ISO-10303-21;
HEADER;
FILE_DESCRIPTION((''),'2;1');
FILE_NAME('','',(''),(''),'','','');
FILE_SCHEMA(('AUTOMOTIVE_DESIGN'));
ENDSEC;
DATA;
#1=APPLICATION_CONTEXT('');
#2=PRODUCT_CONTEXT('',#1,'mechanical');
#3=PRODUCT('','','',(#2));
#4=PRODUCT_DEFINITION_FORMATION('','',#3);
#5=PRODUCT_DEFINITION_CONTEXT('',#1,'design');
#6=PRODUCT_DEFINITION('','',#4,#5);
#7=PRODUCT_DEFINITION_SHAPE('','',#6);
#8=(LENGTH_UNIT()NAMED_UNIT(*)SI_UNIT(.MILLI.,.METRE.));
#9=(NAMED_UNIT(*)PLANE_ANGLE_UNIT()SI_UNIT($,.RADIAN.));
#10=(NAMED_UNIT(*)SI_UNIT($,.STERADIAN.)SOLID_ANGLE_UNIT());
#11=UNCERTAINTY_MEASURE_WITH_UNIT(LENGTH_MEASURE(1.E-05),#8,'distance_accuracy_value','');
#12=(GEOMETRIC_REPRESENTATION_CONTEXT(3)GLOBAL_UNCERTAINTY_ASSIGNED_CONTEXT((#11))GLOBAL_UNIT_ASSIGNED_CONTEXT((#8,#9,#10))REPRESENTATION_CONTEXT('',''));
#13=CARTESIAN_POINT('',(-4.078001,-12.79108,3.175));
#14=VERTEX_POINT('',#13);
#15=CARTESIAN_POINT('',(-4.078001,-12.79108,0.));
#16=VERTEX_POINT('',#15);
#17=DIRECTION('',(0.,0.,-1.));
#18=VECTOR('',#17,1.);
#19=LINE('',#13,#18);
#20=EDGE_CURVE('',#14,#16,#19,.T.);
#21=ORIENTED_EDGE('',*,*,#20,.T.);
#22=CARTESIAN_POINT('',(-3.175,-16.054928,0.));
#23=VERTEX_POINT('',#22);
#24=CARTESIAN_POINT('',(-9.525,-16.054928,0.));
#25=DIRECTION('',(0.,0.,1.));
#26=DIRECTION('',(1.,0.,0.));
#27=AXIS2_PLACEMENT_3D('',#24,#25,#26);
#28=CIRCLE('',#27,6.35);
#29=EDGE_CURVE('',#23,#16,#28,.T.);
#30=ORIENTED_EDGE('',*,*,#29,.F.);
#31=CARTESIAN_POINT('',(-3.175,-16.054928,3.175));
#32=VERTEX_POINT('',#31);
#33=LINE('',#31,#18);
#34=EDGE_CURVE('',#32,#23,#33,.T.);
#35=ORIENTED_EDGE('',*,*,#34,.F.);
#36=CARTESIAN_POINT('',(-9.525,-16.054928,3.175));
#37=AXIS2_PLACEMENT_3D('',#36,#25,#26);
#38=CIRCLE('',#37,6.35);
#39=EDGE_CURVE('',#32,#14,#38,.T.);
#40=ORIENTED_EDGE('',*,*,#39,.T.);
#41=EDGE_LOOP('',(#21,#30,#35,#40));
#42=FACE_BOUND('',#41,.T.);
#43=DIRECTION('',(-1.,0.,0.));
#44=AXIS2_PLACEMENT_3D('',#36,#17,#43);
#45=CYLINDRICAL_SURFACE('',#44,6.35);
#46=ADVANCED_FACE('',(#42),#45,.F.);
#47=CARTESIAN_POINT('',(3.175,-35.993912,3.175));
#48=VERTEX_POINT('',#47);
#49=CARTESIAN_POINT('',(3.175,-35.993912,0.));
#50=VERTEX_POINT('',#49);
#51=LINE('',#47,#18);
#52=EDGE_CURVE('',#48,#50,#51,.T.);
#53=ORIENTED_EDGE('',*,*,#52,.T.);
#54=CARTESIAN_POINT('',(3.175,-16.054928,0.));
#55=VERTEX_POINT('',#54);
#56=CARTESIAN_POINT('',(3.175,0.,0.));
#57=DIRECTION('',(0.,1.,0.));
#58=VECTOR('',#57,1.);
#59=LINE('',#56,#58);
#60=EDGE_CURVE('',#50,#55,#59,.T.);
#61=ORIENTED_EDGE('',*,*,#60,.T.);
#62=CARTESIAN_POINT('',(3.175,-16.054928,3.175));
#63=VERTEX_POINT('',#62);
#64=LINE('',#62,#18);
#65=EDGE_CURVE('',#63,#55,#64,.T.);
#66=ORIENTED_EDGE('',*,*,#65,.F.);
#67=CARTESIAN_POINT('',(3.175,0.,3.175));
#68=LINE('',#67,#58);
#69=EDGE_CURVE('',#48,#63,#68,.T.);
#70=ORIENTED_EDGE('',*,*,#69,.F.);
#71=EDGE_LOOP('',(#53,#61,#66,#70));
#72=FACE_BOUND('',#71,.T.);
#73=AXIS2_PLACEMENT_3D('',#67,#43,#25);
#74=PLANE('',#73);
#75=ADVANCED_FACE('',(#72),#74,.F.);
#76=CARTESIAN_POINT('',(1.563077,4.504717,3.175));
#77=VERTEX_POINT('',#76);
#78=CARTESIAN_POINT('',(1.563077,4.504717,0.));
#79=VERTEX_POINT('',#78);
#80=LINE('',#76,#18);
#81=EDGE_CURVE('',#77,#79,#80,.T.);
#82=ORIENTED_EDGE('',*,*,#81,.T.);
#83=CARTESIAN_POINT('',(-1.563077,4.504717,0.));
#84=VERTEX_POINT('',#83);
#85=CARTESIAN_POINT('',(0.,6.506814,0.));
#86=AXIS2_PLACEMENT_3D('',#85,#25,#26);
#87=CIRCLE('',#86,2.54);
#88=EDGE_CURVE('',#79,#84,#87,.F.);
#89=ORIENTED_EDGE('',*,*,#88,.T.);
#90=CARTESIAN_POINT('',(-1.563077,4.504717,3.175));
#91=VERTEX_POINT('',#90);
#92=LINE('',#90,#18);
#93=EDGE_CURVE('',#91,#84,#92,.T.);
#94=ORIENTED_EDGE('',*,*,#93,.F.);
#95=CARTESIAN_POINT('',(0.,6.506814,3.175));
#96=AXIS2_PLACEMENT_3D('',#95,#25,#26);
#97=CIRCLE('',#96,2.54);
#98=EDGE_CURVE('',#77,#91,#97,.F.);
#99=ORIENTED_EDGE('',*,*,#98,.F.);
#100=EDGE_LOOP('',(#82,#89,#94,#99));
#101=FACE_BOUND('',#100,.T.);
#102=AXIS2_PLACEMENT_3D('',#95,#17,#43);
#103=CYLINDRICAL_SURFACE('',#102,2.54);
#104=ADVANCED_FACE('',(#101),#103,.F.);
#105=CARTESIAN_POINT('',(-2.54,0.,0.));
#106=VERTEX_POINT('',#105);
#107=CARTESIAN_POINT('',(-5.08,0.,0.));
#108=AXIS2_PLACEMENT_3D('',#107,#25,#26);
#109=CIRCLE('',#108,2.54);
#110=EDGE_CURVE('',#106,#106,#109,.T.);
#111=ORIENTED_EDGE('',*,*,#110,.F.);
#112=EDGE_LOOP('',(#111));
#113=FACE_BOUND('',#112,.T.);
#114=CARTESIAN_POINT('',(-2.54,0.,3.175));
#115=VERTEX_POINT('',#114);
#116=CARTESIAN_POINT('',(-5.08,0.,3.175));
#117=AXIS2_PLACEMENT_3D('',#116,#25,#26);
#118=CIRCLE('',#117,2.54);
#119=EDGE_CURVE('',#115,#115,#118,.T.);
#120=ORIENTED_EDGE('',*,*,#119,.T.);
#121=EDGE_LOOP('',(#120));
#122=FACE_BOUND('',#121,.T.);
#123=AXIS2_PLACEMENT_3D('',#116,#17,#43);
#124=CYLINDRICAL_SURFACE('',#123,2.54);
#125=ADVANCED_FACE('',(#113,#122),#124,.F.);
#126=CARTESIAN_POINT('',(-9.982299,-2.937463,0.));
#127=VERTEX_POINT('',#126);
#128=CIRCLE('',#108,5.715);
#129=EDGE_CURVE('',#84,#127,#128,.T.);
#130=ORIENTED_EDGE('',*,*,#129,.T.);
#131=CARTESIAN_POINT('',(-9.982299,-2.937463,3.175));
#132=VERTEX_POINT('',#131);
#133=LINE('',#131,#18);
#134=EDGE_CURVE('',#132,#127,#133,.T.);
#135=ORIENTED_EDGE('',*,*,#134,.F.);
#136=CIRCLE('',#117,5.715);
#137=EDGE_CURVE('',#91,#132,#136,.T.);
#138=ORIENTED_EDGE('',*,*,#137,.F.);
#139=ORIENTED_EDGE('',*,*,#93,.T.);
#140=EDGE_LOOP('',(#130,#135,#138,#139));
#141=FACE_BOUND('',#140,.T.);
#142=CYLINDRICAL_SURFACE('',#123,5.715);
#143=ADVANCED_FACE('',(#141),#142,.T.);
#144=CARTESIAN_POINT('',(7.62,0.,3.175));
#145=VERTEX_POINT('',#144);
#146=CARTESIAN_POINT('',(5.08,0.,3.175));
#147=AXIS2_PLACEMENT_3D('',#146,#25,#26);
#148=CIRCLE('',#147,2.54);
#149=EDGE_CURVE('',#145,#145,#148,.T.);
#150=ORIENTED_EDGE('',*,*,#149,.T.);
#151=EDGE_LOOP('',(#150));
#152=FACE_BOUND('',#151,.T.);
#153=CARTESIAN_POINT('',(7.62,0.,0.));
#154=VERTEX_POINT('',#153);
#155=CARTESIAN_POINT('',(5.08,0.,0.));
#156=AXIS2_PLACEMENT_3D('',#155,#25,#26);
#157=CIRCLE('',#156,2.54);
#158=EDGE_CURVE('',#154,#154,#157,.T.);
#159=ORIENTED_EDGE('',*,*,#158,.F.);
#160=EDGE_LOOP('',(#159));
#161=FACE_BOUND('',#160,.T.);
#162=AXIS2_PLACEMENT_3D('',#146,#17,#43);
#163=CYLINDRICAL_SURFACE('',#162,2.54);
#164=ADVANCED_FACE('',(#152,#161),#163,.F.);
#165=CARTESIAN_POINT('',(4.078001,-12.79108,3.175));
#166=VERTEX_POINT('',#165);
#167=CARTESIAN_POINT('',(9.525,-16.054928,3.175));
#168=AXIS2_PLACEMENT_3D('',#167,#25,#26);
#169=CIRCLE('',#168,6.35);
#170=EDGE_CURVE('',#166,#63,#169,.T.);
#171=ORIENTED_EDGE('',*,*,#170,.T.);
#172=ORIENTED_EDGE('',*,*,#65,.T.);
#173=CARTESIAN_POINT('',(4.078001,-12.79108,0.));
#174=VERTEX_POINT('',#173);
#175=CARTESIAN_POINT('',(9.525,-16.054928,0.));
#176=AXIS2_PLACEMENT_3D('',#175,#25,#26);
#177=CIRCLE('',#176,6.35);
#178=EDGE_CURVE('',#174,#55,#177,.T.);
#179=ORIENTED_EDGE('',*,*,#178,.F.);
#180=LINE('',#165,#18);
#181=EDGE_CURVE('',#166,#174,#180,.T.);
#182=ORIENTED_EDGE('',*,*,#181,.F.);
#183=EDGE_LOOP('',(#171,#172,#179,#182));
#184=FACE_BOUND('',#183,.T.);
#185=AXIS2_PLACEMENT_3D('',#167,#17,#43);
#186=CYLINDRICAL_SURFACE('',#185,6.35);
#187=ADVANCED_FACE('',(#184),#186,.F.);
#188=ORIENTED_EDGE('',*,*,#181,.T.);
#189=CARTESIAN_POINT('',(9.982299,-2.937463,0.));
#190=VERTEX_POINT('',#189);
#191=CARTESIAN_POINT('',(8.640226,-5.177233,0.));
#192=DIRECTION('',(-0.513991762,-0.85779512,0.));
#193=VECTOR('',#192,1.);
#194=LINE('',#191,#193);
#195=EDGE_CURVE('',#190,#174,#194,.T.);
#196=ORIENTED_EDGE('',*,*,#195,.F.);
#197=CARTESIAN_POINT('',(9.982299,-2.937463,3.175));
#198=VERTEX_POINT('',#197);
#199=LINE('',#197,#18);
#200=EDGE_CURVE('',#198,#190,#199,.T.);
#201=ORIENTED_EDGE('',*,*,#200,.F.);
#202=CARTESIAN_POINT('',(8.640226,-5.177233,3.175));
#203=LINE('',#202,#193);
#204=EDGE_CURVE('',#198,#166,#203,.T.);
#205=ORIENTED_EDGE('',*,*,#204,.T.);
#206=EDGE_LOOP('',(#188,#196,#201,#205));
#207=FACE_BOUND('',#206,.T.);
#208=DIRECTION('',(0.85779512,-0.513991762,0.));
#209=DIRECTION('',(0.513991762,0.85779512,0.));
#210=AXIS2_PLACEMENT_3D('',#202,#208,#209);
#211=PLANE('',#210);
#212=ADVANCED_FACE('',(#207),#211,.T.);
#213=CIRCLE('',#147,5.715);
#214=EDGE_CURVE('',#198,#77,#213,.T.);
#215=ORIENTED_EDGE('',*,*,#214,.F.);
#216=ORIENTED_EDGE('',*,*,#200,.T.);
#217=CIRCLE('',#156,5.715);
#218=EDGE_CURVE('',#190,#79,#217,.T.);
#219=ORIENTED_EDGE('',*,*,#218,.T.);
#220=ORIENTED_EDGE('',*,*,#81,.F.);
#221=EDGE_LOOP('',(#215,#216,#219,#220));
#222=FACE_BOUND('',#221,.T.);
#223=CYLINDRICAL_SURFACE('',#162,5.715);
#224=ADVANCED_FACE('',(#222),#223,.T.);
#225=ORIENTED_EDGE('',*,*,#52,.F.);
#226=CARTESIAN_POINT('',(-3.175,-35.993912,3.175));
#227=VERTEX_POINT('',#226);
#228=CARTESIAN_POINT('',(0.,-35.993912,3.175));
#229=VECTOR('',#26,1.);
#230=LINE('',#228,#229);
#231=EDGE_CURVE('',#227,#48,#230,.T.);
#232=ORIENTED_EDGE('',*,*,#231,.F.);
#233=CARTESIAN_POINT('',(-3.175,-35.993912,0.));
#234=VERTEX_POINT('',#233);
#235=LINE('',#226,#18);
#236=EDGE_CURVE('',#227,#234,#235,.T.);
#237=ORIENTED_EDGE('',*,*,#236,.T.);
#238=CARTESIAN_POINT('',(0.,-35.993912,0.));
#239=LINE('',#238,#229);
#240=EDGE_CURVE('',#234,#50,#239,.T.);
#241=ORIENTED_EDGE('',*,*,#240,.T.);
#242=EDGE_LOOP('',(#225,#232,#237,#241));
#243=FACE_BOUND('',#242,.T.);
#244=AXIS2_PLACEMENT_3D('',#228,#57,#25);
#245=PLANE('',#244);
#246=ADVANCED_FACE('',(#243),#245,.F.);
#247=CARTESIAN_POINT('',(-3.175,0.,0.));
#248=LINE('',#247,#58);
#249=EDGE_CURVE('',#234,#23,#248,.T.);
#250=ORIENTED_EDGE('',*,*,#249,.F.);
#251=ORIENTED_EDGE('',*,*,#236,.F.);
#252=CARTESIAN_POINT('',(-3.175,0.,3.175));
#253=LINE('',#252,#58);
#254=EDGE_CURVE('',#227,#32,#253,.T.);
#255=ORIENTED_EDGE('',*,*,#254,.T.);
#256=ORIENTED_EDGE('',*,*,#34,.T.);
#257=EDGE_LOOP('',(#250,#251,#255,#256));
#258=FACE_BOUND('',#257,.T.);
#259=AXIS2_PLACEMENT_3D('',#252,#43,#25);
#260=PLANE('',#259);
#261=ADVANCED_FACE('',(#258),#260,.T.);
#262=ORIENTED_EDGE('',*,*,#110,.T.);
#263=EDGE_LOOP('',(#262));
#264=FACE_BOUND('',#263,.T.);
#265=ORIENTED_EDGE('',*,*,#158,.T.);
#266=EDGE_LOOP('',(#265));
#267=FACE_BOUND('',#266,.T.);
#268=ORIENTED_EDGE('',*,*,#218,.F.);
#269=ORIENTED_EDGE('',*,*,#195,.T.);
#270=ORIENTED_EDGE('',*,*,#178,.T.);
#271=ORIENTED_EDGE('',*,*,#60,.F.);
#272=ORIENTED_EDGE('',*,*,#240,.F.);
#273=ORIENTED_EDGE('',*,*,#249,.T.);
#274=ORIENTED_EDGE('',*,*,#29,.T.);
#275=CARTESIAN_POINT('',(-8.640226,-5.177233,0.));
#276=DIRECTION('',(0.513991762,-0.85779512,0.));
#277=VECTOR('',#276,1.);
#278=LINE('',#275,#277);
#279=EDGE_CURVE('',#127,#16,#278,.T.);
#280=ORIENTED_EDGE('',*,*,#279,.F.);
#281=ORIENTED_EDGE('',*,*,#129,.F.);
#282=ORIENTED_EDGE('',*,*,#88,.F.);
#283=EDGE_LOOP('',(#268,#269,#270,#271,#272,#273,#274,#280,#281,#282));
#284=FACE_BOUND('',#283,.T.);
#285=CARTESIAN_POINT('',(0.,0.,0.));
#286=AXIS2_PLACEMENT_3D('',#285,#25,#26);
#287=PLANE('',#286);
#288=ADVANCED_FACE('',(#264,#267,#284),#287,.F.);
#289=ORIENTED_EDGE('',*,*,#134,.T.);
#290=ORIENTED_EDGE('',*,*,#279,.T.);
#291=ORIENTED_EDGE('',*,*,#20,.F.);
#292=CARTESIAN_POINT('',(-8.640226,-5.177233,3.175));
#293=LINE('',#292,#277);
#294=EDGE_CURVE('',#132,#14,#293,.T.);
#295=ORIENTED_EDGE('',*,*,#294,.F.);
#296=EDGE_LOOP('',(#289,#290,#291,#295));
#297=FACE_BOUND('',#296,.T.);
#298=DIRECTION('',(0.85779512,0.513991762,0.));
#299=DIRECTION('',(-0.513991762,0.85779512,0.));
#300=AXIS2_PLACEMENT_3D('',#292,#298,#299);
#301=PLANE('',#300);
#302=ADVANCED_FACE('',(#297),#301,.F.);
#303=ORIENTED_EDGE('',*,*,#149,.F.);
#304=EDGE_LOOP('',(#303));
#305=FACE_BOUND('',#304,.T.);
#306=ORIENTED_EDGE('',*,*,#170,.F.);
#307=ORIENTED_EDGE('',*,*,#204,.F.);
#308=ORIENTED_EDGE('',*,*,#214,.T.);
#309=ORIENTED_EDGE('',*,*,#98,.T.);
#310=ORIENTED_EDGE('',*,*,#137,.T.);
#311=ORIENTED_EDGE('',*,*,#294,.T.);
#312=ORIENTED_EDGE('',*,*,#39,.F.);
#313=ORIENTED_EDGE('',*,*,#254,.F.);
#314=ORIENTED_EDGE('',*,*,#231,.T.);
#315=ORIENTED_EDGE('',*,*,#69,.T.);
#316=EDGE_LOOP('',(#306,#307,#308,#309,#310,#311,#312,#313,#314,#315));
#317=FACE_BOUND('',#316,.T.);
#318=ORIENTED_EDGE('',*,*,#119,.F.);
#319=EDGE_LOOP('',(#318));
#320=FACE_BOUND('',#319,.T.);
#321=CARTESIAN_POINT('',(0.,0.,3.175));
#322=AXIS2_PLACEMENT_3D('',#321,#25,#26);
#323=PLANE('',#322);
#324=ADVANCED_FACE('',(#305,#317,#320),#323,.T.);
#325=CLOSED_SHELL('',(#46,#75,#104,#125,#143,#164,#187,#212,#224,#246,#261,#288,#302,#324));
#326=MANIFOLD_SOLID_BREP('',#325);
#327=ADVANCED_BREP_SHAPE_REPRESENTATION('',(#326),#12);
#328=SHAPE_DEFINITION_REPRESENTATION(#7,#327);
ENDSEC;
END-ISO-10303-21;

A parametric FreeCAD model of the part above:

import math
import FreeCAD as App
import Part
import Sketcher
Q = App.Units.Quantity

doc = App.newDocument("Part")
body = doc.addObject("PartDesign::Body", "Body")

sketch1 = body.newObject("Sketcher::SketchObject", "Sketch")
sketch1.AttachmentSupport = (doc.getObject("XY_Plane"), [""])
sketch1.MapMode = "FlatFace"
sketch1.addGeometry(Part.LineSegment(App.Vector(-10, -2.9, 0), App.Vector(-4.1, -12.8, 0)), False)
sketch1.addGeometry(Part.ArcOfCircle(Part.Circle(App.Vector(-9.5, -16.1, 0), App.Vector(0, 0, 1), 6.4), math.radians(0), math.radians(31)), False)
sketch1.addGeometry(Part.LineSegment(App.Vector(-3.2, -16.1, 0), App.Vector(-3.2, -36, 0)), False)
sketch1.addGeometry(Part.LineSegment(App.Vector(-3.2, -36, 0), App.Vector(3.2, -36, 0)), False)
sketch1.addGeometry(Part.LineSegment(App.Vector(3.2, -36, 0), App.Vector(3.2, -16.1, 0)), False)
sketch1.addGeometry(Part.ArcOfCircle(Part.Circle(App.Vector(9.5, -16.1, 0), App.Vector(0, 0, 1), 6.4), math.radians(149), math.radians(180)), False)
sketch1.addGeometry(Part.LineSegment(App.Vector(4.1, -12.8, 0), App.Vector(10, -2.9, 0)), False)
sketch1.addGeometry(Part.ArcOfCircle(Part.Circle(App.Vector(5.1, 0, 0), App.Vector(0, 0, 1), 5.7), math.radians(-31), math.radians(128)), False)
sketch1.addGeometry(Part.ArcOfCircle(Part.Circle(App.Vector(0, 6.5, 0), App.Vector(0, 0, 1), 2.5), math.radians(-128), math.radians(-52)), False)
sketch1.addGeometry(Part.ArcOfCircle(Part.Circle(App.Vector(-5.1, 0, 0), App.Vector(0, 0, 1), 5.7), math.radians(52), math.radians(211)), False)
sketch1.addGeometry(Part.Circle(App.Vector(-5.1, 0, 0), App.Vector(0, 0, 1), 2.5), False)
sketch1.addGeometry(Part.Circle(App.Vector(5.1, 0, 0), App.Vector(0, 0, 1), 2.5), False)
sketch1.addConstraint(Sketcher.Constraint("Tangent", 0, 2, 1, 2))
sketch1.addConstraint(Sketcher.Constraint("Tangent", 1, 1, 2, 1))
sketch1.addConstraint(Sketcher.Constraint("Coincident", 2, 2, 3, 1))
sketch1.addConstraint(Sketcher.Constraint("Coincident", 3, 2, 4, 1))
sketch1.addConstraint(Sketcher.Constraint("Tangent", 4, 2, 5, 2))
sketch1.addConstraint(Sketcher.Constraint("Tangent", 5, 1, 6, 1))
sketch1.addConstraint(Sketcher.Constraint("Tangent", 6, 2, 7, 1))
sketch1.addConstraint(Sketcher.Constraint("Tangent", 7, 2, 8, 2))
sketch1.addConstraint(Sketcher.Constraint("Tangent", 8, 1, 9, 1))
sketch1.addConstraint(Sketcher.Constraint("Tangent", 9, 2, 0, 1))
sketch1.addConstraint(Sketcher.Constraint("Vertical", 2))
sketch1.addConstraint(Sketcher.Constraint("Horizontal", 3))
sketch1.addConstraint(Sketcher.Constraint("Vertical", 4))
sketch1.addConstraint(Sketcher.Constraint("Coincident", 10, 3, 9, 3))
sketch1.addConstraint(Sketcher.Constraint("Coincident", 11, 3, 7, 3))
sketch1.addConstraint(Sketcher.Constraint("Equal", 1, 5))
sketch1.addConstraint(Sketcher.Constraint("Equal", 7, 9))
sketch1.addConstraint(Sketcher.Constraint("Equal", 8, 10))
sketch1.addConstraint(Sketcher.Constraint("Equal", 10, 11))
sketch1.addConstraint(Sketcher.Constraint("Symmetric", 7, 3, 9, 3, -1, 1))
sketch1.addConstraint(Sketcher.Constraint("Symmetric", 1, 3, 5, 3, -2))
sketch1.addConstraint(Sketcher.Constraint("PointOnObject", 7, 3, -1))
sketch1.addConstraint(Sketcher.Constraint("Diameter", 10, Q("0.2 in")))
sketch1.addConstraint(Sketcher.Constraint("Radius", 1, Q("0.25 in")))
sketch1.addConstraint(Sketcher.Constraint("Radius", 7, Q("0.225 in")))
sketch1.addConstraint(Sketcher.Constraint("DistanceX", 3, 1, 3, 2, Q("0.25 in")))
sketch1.addConstraint(Sketcher.Constraint("DistanceX", -1, 1, 7, 3, Q("0.2 in")))
sketch1.addConstraint(Sketcher.Constraint("DistanceX", 0, 2, -1, 1, Q("4.078001 mm")))
sketch1.addConstraint(Sketcher.Constraint("DistanceY", 2, 2, 2, 1, Q("19.938984 mm")))
pad1 = body.newObject("PartDesign::Pad", "Pad")
pad1.Profile = sketch1
pad1.Length = Q("0.125 in")

doc.recompute()
